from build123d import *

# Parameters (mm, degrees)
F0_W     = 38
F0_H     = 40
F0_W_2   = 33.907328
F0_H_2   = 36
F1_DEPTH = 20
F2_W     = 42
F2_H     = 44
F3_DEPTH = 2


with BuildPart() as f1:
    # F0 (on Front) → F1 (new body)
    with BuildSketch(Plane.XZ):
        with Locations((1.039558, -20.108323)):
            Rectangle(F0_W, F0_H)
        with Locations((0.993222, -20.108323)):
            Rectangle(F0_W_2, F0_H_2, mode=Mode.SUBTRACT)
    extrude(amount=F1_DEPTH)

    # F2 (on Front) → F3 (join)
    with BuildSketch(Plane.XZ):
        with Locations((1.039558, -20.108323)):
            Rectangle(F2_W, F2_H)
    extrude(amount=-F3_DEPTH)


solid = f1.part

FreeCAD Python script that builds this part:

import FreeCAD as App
import Part
import Sketcher
Q = App.Units.Quantity

doc = App.newDocument("Part")
body = doc.addObject("PartDesign::Body", "Body")

# Sketch on XZ plane
sketch1 = body.newObject("Sketcher::SketchObject", "Sketch")
sketch1.AttachmentSupport = (doc.getObject("XZ_Plane"), [""])
sketch1.MapMode = "FlatFace"
sketch1.addGeometry(Part.LineSegment(App.Vector(-18, 0, 0), App.Vector(-18, -40, 0)), False)
sketch1.addGeometry(Part.LineSegment(App.Vector(-18, -40, 0), App.Vector(20, -40, 0)), False)
sketch1.addGeometry(Part.LineSegment(App.Vector(20, -40, 0), App.Vector(20, 0, 0)), False)
sketch1.addGeometry(Part.LineSegment(App.Vector(20, 0, 0), App.Vector(-18, 0, 0)), False)
sketch1.addGeometry(Part.LineSegment(App.Vector(18, -38, 0), App.Vector(-16, -38, 0)), False)
sketch1.addGeometry(Part.LineSegment(App.Vector(-16, -38, 0), App.Vector(-16, -2, 0)), False)
sketch1.addGeometry(Part.LineSegment(App.Vector(-16, -2, 0), App.Vector(18, -2, 0)), False)
sketch1.addGeometry(Part.LineSegment(App.Vector(18, -2, 0), App.Vector(18, -38, 0)), False)
sketch1.addConstraint(Sketcher.Constraint("Coincident", 0, 2, 1, 1))
sketch1.addConstraint(Sketcher.Constraint("Coincident", 1, 2, 2, 1))
sketch1.addConstraint(Sketcher.Constraint("Coincident", 2, 2, 3, 1))
sketch1.addConstraint(Sketcher.Constraint("Coincident", 3, 2, 0, 1))
sketch1.addConstraint(Sketcher.Constraint("Coincident", 4, 2, 5, 1))
sketch1.addConstraint(Sketcher.Constraint("Coincident", 5, 2, 6, 1))
sketch1.addConstraint(Sketcher.Constraint("Coincident", 6, 2, 7, 1))
sketch1.addConstraint(Sketcher.Constraint("Coincident", 7, 2, 4, 1))
sketch1.addConstraint(Sketcher.Constraint("Vertical", 0))
sketch1.addConstraint(Sketcher.Constraint("Horizontal", 1))
sketch1.addConstraint(Sketcher.Constraint("Vertical", 2))
sketch1.addConstraint(Sketcher.Constraint("Horizontal", 3))
sketch1.addConstraint(Sketcher.Constraint("Horizontal", 4))
sketch1.addConstraint(Sketcher.Constraint("Vertical", 5))
sketch1.addConstraint(Sketcher.Constraint("Horizontal", 6))
sketch1.addConstraint(Sketcher.Constraint("Vertical", 7))
sketch1.addConstraint(Sketcher.Constraint("DistanceX", 1, 1, 1, 2, Q("38 mm")))
sketch1.addConstraint(Sketcher.Constraint("DistanceY", 0, 2, 0, 1, Q("40 mm")))
sketch1.addConstraint(Sketcher.Constraint("DistanceY", 5, 1, 5, 2, Q("36 mm")))
sketch1.addConstraint(Sketcher.Constraint("DistanceX", 0, 2, 4, 2, Q("2 mm")))
sketch1.addConstraint(Sketcher.Constraint("DistanceY", 0, 2, 4, 2, Q("2 mm")))
sketch1.addConstraint(Sketcher.Constraint("DistanceX", 4, 2, 4, 1, Q("33.907328 mm")))
sketch1.addConstraint(Sketcher.Constraint("DistanceX", 0, 2, -1, 1, Q("17.960442 mm")))
sketch1.addConstraint(Sketcher.Constraint("DistanceY", 0, 2, -1, 1, Q("40.108323 mm")))
pad1 = body.newObject("PartDesign::Pad", "Pad")
pad1.Profile = sketch1
pad1.Length = 20

# Sketch on XZ plane
sketch2 = body.newObject("Sketcher::SketchObject", "Sketch001")
sketch2.AttachmentSupport = (doc.getObject("XZ_Plane"), [""])
sketch2.MapMode = "FlatFace"
sketch2.addGeometry(Part.LineSegment(App.Vector(-20, 2, 0), App.Vector(-20, -42, 0)), False)
sketch2.addGeometry(Part.LineSegment(App.Vector(-20, -42, 0), App.Vector(22, -42, 0)), False)
sketch2.addGeometry(Part.LineSegment(App.Vector(22, -42, 0), App.Vector(22, 2, 0)), False)
sketch2.addGeometry(Part.LineSegment(App.Vector(22, 2, 0), App.Vector(-20, 2, 0)), False)
sketch2.addConstraint(Sketcher.Constraint("Coincident", 0, 2, 1, 1))
sketch2.addConstraint(Sketcher.Constraint("Coincident", 1, 2, 2, 1))
sketch2.addConstraint(Sketcher.Constraint("Coincident", 2, 2, 3, 1))
sketch2.addConstraint(Sketcher.Constraint("Coincident", 3, 2, 0, 1))
sketch2.addConstraint(Sketcher.Constraint("Vertical", 0))
sketch2.addConstraint(Sketcher.Constraint("Horizontal", 1))
sketch2.addConstraint(Sketcher.Constraint("Vertical", 2))
sketch2.addConstraint(Sketcher.Constraint("Horizontal", 3))
sketch2.addConstraint(Sketcher.Constraint("DistanceX", 1, 1, 1, 2, Q("42 mm")))
sketch2.addConstraint(Sketcher.Constraint("DistanceY", 0, 2, 0, 1, Q("44 mm")))
sketch2.addConstraint(Sketcher.Constraint("DistanceX", 0, 2, -1, 1, Q("19.960442 mm")))
sketch2.addConstraint(Sketcher.Constraint("DistanceY", 0, 2, -1, 1, Q("42.108323 mm")))
pad2 = body.newObject("PartDesign::Pad", "Pad001")
pad2.Profile = sketch2
pad2.Length = 2
pad2.Reversed = True

doc.recompute()
